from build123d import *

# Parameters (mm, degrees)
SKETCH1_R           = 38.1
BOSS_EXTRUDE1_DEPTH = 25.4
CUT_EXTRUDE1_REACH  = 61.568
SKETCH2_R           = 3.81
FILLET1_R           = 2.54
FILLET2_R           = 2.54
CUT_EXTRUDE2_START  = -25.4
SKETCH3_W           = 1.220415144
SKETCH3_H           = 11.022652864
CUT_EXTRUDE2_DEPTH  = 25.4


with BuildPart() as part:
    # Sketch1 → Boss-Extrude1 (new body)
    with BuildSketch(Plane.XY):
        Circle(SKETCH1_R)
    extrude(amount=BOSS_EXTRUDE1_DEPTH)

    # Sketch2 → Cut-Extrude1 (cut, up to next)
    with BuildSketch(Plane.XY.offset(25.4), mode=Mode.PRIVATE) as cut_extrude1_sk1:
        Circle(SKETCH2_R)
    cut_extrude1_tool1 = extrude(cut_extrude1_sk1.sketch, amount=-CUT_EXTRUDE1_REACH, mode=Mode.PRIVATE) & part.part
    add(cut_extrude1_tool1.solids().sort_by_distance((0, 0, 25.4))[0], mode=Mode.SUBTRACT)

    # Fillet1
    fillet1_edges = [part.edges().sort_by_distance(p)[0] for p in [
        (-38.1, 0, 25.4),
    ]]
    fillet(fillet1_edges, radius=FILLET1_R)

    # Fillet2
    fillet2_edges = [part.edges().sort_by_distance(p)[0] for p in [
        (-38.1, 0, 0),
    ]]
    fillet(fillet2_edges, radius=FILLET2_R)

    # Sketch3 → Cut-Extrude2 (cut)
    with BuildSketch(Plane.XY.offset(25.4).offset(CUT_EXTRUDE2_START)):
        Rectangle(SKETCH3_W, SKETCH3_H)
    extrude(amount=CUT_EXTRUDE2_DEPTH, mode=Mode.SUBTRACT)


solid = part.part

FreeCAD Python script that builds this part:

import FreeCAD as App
import Part
import Sketcher
Q = App.Units.Quantity


def edges_at(feature, points):
    """Names of the edges that pass closest to the given points."""
    edges = feature.Shape.Edges
    near = lambda p: min(range(len(edges)), key=lambda i: edges[i].distToShape(Part.Vertex(*p))[0])
    return sorted({f"Edge{near(p) + 1}" for p in points})


def add_polygon(sketch, points):
    """Adds a closed chain of lines whose ends are joined by coincident constraints."""
    first, n = sketch.GeometryCount, len(points)
    for a, b in zip(points, points[1:] + points[:1]):
        sketch.addGeometry(Part.LineSegment(App.Vector(*a, 0), App.Vector(*b, 0)), False)
    for i in range(n):
        sketch.addConstraint(Sketcher.Constraint("Coincident", first + i, 2, first + (i + 1) % n, 1))

doc = App.newDocument("Part")
body = doc.addObject("PartDesign::Body", "Body")

# Sketch on XY plane
sketch1 = body.newObject("Sketcher::SketchObject", "Sketch")
sketch1.AttachmentSupport = (doc.getObject("XY_Plane"), [""])
sketch1.MapMode = "FlatFace"
sketch1.addGeometry(Part.Circle(App.Vector(0, 0, 0), App.Vector(0, 0, 1), 38), False)
sketch1.addConstraint(Sketcher.Constraint("Coincident", 0, 3, -1, 1))
sketch1.addConstraint(Sketcher.Constraint("Diameter", 0, Q("3 in")))
pad1 = body.newObject("PartDesign::Pad", "Pad")
pad1.Profile = sketch1
pad1.Length = Q("1 in")

# Sketch on XY plane
sketch2 = body.newObject("Sketcher::SketchObject", "Sketch001")
sketch2.AttachmentSupport = (doc.getObject("XY_Plane"), [""])
sketch2.MapMode = "FlatFace"
sketch2.AttachmentOffset = App.Placement(App.Vector(0, 0, 1 * 25.4), App.Rotation())
sketch2.addGeometry(Part.Circle(App.Vector(0, 0, 0), App.Vector(0, 0, 1), 3.8), False)
sketch2.addConstraint(Sketcher.Constraint("Coincident", 0, 3, -1, 1))
sketch2.addConstraint(Sketcher.Constraint("Diameter", 0, Q("0.3 in")))
pocket1 = body.newObject("PartDesign::Pocket", "Pocket")
pocket1.Profile = sketch2
pocket1.Type = "UpToFirst"
doc.recompute()

fillet = body.newObject("PartDesign::Fillet", "Fillet")
fillet.Base = (pocket1, edges_at(pocket1, [(-38.1, 0, 25.4)]))
fillet.Radius = Q("0.1 in")
doc.recompute()

fillet2 = body.newObject("PartDesign::Fillet", "Fillet001")
fillet2.Base = (fillet, edges_at(fillet, [(-38.1, 0, 0)]))
fillet2.Radius = Q("0.1 in")

# Sketch on XY plane
sketch3 = body.newObject("Sketcher::SketchObject", "Sketch002")
sketch3.AttachmentSupport = (doc.getObject("XY_Plane"), [""])
sketch3.MapMode = "FlatFace"
add_polygon(sketch3, [(-0.6, 5.5), (-0.6, -5.5), (0.6, -5.5), (0.6, 5.5)])  # lines 0-3
sketch3.addConstraint(Sketcher.Constraint("Vertical", 0))
sketch3.addConstraint(Sketcher.Constraint("Horizontal", 1))
sketch3.addConstraint(Sketcher.Constraint("Vertical", 2))
sketch3.addConstraint(Sketcher.Constraint("Horizontal", 3))
sketch3.addConstraint(Sketcher.Constraint("Symmetric", 0, 2, 2, 2, -1, 1))
sketch3.addConstraint(Sketcher.Constraint("DistanceX", 1, 1, 1, 2, 1.220415))
sketch3.addConstraint(Sketcher.Constraint("DistanceY", 0, 2, 0, 1, 11.022653))
pocket2 = body.newObject("PartDesign::Pocket", "Pocket001")
pocket2.Profile = sketch3
pocket2.Length = Q("1 in")
pocket2.Reversed = True

doc.recompute()
